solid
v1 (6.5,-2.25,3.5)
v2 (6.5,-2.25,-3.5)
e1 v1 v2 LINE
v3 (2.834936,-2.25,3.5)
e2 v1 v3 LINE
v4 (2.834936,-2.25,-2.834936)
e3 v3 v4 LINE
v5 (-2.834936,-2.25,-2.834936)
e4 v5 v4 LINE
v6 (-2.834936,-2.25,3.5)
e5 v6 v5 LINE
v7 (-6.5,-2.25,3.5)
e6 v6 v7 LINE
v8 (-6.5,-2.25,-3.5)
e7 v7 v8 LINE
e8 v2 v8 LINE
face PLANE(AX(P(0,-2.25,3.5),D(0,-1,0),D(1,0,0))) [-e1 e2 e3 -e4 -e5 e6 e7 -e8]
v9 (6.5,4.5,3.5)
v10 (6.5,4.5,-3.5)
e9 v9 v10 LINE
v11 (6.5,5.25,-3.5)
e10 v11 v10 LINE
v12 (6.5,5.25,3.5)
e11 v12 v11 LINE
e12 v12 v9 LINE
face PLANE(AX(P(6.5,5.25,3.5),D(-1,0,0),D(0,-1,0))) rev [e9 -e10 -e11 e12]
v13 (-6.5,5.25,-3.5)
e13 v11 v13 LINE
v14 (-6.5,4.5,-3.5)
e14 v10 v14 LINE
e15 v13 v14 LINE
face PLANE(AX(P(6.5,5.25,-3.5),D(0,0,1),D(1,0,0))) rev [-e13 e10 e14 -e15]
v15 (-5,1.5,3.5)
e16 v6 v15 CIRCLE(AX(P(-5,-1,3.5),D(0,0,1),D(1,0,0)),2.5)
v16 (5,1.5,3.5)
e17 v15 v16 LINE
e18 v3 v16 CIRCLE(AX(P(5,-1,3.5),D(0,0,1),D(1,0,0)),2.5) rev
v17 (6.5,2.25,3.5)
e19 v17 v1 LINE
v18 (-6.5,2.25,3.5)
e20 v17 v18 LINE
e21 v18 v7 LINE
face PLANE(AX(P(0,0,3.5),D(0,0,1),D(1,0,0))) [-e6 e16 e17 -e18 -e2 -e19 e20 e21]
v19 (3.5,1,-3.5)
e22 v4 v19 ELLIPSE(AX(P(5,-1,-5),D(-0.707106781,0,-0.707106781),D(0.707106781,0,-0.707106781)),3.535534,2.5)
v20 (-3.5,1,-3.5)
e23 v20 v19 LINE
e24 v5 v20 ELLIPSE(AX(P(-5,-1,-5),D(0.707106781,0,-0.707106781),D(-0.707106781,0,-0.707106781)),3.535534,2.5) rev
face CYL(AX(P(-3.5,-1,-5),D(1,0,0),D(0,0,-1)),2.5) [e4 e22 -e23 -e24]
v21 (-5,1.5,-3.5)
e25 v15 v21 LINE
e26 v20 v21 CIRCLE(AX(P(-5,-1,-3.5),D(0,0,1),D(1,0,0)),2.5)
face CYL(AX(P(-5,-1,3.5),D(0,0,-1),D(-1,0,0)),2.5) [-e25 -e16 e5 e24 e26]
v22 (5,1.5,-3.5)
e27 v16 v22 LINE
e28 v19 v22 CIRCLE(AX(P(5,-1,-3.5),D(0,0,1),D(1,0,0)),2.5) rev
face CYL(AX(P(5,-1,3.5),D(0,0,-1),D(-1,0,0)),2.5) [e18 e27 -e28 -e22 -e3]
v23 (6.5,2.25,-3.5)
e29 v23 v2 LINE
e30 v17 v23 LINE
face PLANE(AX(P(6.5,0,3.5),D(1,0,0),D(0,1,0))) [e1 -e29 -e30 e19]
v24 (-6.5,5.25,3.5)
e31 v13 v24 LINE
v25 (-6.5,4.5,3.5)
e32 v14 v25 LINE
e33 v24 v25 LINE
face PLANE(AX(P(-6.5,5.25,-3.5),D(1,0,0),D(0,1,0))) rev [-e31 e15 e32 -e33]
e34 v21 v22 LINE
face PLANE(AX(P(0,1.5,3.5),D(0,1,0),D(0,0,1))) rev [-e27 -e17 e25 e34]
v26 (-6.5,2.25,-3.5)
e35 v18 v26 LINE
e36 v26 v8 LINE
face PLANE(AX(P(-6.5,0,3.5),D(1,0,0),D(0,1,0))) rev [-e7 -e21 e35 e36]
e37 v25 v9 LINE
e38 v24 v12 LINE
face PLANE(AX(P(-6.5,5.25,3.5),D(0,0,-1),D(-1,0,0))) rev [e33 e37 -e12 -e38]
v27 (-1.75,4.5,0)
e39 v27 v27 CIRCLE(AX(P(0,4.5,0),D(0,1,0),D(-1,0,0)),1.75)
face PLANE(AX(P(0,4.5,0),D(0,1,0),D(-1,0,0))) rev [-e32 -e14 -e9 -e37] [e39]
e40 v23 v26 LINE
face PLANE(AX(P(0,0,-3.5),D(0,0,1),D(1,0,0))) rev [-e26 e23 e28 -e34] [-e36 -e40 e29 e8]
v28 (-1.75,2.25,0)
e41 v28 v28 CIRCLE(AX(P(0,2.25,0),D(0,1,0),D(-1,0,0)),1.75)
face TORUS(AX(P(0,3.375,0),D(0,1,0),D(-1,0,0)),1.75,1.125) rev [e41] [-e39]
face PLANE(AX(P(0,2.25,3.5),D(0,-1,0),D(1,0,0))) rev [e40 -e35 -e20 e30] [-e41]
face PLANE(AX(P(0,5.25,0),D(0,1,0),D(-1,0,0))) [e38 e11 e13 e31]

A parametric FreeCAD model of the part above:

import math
import FreeCAD as App
import Part
import Sketcher

doc = App.newDocument("Part")
body = doc.addObject("PartDesign::Body", "Body")

# Sketch on XY plane
sketch1 = body.newObject("Sketcher::SketchObject", "Sketch")
sketch1.AttachmentSupport = (doc.getObject("XY_Plane"), [""])
sketch1.MapMode = "FlatFace"
sketch1.addGeometry(Part.ArcOfCircle(Part.Circle(App.Vector(-5, -1, 0), App.Vector(0, 0, 1), 2.5), math.radians(-30), math.radians(90)), False)
sketch1.addGeometry(Part.LineSegment(App.Vector(-5, 1.5, 0), App.Vector(5, 1.5, 0)), False)
sketch1.addGeometry(Part.ArcOfCircle(Part.Circle(App.Vector(5, -1, 0), App.Vector(0, 0, 1), 2.5), math.radians(90), math.radians(210)), False)
sketch1.addGeometry(Part.LineSegment(App.Vector(2.8, -2.2, 0), App.Vector(6.5, -2.2, 0)), False)
sketch1.addGeometry(Part.LineSegment(App.Vector(6.5, -2.2, 0), App.Vector(6.5, 2.2, 0)), False)
sketch1.addGeometry(Part.LineSegment(App.Vector(6.5, 2.2, 0), App.Vector(-6.5, 2.2, 0)), False)
sketch1.addGeometry(Part.LineSegment(App.Vector(-6.5, 2.2, 0), App.Vector(-6.5, -2.2, 0)), False)
sketch1.addGeometry(Part.LineSegment(App.Vector(-6.5, -2.2, 0), App.Vector(-2.8, -2.2, 0)), False)
sketch1.addConstraint(Sketcher.Constraint("Tangent", 0, 2, 1, 1))
sketch1.addConstraint(Sketcher.Constraint("Tangent", 1, 2, 2, 1))
sketch1.addConstraint(Sketcher.Constraint("Coincident", 2, 2, 3, 1))
sketch1.addConstraint(Sketcher.Constraint("Coincident", 3, 2, 4, 1))
sketch1.addConstraint(Sketcher.Constraint("Coincident", 4, 2, 5, 1))
sketch1.addConstraint(Sketcher.Constraint("Coincident", 5, 2, 6, 1))
sketch1.addConstraint(Sketcher.Constraint("Coincident", 6, 2, 7, 1))
sketch1.addConstraint(Sketcher.Constraint("Coincident", 7, 2, 0, 1))
sketch1.addConstraint(Sketcher.Constraint("Horizontal", 1))
sketch1.addConstraint(Sketcher.Constraint("Horizontal", 3))
sketch1.addConstraint(Sketcher.Constraint("Vertical", 4))
sketch1.addConstraint(Sketcher.Constraint("Horizontal", 5))
sketch1.addConstraint(Sketcher.Constraint("Vertical", 6))
sketch1.addConstraint(Sketcher.Constraint("Horizontal", 7))
sketch1.addConstraint(Sketcher.Constraint("Equal", 0, 2))
sketch1.addConstraint(Sketcher.Constraint("Symmetric", 3, 2, 5, 2, -1, 1))
sketch1.addConstraint(Sketcher.Constraint("Symmetric", 2, 2, 7, 2, -2))
sketch1.addConstraint(Sketcher.Constraint("Radius", 0, 2.5))
sketch1.addConstraint(Sketcher.Constraint("DistanceX", 1, 1, 1, 2, 10.0))
sketch1.addConstraint(Sketcher.Constraint("DistanceX", 5, 2, 5, 1, 13.0))
sketch1.addConstraint(Sketcher.Constraint("DistanceY", 4, 1, 4, 2, 4.5))
sketch1.addConstraint(Sketcher.Constraint("DistanceY", 0, 3, -1, 1, 1.0))
pad1 = body.newObject("PartDesign::Pad", "Pad")
pad1.Profile = sketch1
pad1.Length = 7
pad1.Midplane = True

# Sketch on YZ plane
sketch2 = body.newObject("Sketcher::SketchObject", "Sketch001")
sketch2.AttachmentSupport = (doc.getObject("YZ_Plane"), [""])
sketch2.MapMode = "FlatFace"
sketch2.addGeometry(Part.LineSegment(App.Vector(-2.2, -3.5, 0), App.Vector(1, -3.5, 0)), False)
sketch2.addGeometry(Part.ArcOfCircle(Part.Circle(App.Vector(-1, -5, 0), App.Vector(0, 0, 1), 2.5), math.radians(37), math.radians(120)), False)
sketch2.addGeometry(Part.LineSegment(App.Vector(-2.2, -2.8, 0), App.Vector(-2.2, -3.5, 0)), False)
sketch2.addConstraint(Sketcher.Constraint("Coincident", 0, 2, 1, 1))
sketch2.addConstraint(Sketcher.Constraint("Coincident", 1, 2, 2, 1))
sketch2.addConstraint(Sketcher.Constraint("Coincident", 2, 2, 0, 1))
sketch2.addConstraint(Sketcher.Constraint("Horizontal", 0))
sketch2.addConstraint(Sketcher.Constraint("Vertical", 2))
sketch2.addConstraint(Sketcher.Constraint("Radius", 1, 2.5))
sketch2.addConstraint(Sketcher.Constraint("DistanceX", 1, 3, -1, 1, 1.0))
sketch2.addConstraint(Sketcher.Constraint("DistanceY", 1, 3, -1, 1, 5.0))
sketch2.addConstraint(Sketcher.Constraint("DistanceX", -1, 1, 0, 2, 1.0))
sketch2.addConstraint(Sketcher.Constraint("DistanceX", 0, 1, 0, 2, 3.25))
pad2 = body.newObject("PartDesign::Pad", "Pad001")
pad2.Profile = sketch2
pad2.Length = 7
pad2.Midplane = True

# Sketch on XY plane
sketch3 = body.newObject("Sketcher::SketchObject", "Sketch002")
sketch3.AttachmentSupport = (doc.getObject("XY_Plane"), [""])
sketch3.MapMode = "FlatFace"
sketch3.addGeometry(Part.LineSegment(App.Vector(0, 4.5, 0), App.Vector(-1.8, 4.5, 0)), False)
sketch3.addGeometry(Part.ArcOfCircle(Part.Circle(App.Vector(-1.8, 3.4, 0), App.Vector(0, 0, 1), 1.1), math.radians(-90), math.radians(90)), False)
sketch3.addGeometry(Part.LineSegment(App.Vector(-1.8, 2.2, 0), App.Vector(0, 2.2, 0)), False)
sketch3.addGeometry(Part.LineSegment(App.Vector(0, 2.2, 0), App.Vector(0, 4.5, 0)), False)
sketch3.addConstraint(Sketcher.Constraint("Tangent", 0, 2, 1, 2))
sketch3.addConstraint(Sketcher.Constraint("Tangent", 1, 1, 2, 1))
sketch3.addConstraint(Sketcher.Constraint("Coincident", 2, 2, 3, 1))
sketch3.addConstraint(Sketcher.Constraint("Coincident", 3, 2, 0, 1))
sketch3.addConstraint(Sketcher.Constraint("Horizontal", 0))
sketch3.addConstraint(Sketcher.Constraint("Horizontal", 2))
sketch3.addConstraint(Sketcher.Constraint("Vertical", 3))
sketch3.addConstraint(Sketcher.Constraint("PointOnObject", 2, 2, -2))
sketch3.addConstraint(Sketcher.Constraint("Radius", 1, 1.125))
sketch3.addConstraint(Sketcher.Constraint("DistanceX", 0, 2, 0, 1, 1.75))
sketch3.addConstraint(Sketcher.Constraint("DistanceY", -1, 1, 0, 2, 4.5))
revolution = body.newObject("PartDesign::Revolution", "Revolution")
revolution.Profile = sketch3
revolution.ReferenceAxis = (sketch3, ["V_Axis"])
revolution.Angle = 360

# Sketch on XZ plane
sketch4 = body.newObject("Sketcher::SketchObject", "Sketch003")
sketch4.AttachmentSupport = (doc.getObject("XZ_Plane"), [""])
sketch4.MapMode = "FlatFace"
sketch4.AttachmentOffset = App.Placement(App.Vector(0, 0, -4.5), App.Rotation())
sketch4.addGeometry(Part.LineSegment(App.Vector(-6, -4, 0), App.Vector(-6, 4, 0)), False)
sketch4.addGeometry(Part.LineSegment(App.Vector(-6, 4, 0), App.Vector(6, 4, 0)), False)
sketch4.addGeometry(Part.LineSegment(App.Vector(6, 4, 0), App.Vector(6, -4, 0)), False)
sketch4.addGeometry(Part.LineSegment(App.Vector(6, -4, 0), App.Vector(-6, -4, 0)), False)
sketch4.addConstraint(Sketcher.Constraint("Coincident", 0, 2, 1, 1))
sketch4.addConstraint(Sketcher.Constraint("Coincident", 1, 2, 2, 1))
sketch4.addConstraint(Sketcher.Constraint("Coincident", 2, 2, 3, 1))
sketch4.addConstraint(Sketcher.Constraint("Coincident", 3, 2, 0, 1))
sketch4.addConstraint(Sketcher.Constraint("Vertical", 0))
sketch4.addConstraint(Sketcher.Constraint("Horizontal", 1))
sketch4.addConstraint(Sketcher.Constraint("Vertical", 2))
sketch4.addConstraint(Sketcher.Constraint("Horizontal", 3))
sketch4.addConstraint(Sketcher.Constraint("Symmetric", 0, 2, 2, 2, -1, 1))
sketch4.addConstraint(Sketcher.Constraint("DistanceX", 1, 1, 1, 2, 13.0))
sketch4.addConstraint(Sketcher.Constraint("DistanceY", 0, 1, 0, 2, 7.0))
pad3 = body.newObject("PartDesign::Pad", "Pad002")
pad3.Profile = sketch4
pad3.Length = 0.75
pad3.Reversed = True

doc.recompute()
